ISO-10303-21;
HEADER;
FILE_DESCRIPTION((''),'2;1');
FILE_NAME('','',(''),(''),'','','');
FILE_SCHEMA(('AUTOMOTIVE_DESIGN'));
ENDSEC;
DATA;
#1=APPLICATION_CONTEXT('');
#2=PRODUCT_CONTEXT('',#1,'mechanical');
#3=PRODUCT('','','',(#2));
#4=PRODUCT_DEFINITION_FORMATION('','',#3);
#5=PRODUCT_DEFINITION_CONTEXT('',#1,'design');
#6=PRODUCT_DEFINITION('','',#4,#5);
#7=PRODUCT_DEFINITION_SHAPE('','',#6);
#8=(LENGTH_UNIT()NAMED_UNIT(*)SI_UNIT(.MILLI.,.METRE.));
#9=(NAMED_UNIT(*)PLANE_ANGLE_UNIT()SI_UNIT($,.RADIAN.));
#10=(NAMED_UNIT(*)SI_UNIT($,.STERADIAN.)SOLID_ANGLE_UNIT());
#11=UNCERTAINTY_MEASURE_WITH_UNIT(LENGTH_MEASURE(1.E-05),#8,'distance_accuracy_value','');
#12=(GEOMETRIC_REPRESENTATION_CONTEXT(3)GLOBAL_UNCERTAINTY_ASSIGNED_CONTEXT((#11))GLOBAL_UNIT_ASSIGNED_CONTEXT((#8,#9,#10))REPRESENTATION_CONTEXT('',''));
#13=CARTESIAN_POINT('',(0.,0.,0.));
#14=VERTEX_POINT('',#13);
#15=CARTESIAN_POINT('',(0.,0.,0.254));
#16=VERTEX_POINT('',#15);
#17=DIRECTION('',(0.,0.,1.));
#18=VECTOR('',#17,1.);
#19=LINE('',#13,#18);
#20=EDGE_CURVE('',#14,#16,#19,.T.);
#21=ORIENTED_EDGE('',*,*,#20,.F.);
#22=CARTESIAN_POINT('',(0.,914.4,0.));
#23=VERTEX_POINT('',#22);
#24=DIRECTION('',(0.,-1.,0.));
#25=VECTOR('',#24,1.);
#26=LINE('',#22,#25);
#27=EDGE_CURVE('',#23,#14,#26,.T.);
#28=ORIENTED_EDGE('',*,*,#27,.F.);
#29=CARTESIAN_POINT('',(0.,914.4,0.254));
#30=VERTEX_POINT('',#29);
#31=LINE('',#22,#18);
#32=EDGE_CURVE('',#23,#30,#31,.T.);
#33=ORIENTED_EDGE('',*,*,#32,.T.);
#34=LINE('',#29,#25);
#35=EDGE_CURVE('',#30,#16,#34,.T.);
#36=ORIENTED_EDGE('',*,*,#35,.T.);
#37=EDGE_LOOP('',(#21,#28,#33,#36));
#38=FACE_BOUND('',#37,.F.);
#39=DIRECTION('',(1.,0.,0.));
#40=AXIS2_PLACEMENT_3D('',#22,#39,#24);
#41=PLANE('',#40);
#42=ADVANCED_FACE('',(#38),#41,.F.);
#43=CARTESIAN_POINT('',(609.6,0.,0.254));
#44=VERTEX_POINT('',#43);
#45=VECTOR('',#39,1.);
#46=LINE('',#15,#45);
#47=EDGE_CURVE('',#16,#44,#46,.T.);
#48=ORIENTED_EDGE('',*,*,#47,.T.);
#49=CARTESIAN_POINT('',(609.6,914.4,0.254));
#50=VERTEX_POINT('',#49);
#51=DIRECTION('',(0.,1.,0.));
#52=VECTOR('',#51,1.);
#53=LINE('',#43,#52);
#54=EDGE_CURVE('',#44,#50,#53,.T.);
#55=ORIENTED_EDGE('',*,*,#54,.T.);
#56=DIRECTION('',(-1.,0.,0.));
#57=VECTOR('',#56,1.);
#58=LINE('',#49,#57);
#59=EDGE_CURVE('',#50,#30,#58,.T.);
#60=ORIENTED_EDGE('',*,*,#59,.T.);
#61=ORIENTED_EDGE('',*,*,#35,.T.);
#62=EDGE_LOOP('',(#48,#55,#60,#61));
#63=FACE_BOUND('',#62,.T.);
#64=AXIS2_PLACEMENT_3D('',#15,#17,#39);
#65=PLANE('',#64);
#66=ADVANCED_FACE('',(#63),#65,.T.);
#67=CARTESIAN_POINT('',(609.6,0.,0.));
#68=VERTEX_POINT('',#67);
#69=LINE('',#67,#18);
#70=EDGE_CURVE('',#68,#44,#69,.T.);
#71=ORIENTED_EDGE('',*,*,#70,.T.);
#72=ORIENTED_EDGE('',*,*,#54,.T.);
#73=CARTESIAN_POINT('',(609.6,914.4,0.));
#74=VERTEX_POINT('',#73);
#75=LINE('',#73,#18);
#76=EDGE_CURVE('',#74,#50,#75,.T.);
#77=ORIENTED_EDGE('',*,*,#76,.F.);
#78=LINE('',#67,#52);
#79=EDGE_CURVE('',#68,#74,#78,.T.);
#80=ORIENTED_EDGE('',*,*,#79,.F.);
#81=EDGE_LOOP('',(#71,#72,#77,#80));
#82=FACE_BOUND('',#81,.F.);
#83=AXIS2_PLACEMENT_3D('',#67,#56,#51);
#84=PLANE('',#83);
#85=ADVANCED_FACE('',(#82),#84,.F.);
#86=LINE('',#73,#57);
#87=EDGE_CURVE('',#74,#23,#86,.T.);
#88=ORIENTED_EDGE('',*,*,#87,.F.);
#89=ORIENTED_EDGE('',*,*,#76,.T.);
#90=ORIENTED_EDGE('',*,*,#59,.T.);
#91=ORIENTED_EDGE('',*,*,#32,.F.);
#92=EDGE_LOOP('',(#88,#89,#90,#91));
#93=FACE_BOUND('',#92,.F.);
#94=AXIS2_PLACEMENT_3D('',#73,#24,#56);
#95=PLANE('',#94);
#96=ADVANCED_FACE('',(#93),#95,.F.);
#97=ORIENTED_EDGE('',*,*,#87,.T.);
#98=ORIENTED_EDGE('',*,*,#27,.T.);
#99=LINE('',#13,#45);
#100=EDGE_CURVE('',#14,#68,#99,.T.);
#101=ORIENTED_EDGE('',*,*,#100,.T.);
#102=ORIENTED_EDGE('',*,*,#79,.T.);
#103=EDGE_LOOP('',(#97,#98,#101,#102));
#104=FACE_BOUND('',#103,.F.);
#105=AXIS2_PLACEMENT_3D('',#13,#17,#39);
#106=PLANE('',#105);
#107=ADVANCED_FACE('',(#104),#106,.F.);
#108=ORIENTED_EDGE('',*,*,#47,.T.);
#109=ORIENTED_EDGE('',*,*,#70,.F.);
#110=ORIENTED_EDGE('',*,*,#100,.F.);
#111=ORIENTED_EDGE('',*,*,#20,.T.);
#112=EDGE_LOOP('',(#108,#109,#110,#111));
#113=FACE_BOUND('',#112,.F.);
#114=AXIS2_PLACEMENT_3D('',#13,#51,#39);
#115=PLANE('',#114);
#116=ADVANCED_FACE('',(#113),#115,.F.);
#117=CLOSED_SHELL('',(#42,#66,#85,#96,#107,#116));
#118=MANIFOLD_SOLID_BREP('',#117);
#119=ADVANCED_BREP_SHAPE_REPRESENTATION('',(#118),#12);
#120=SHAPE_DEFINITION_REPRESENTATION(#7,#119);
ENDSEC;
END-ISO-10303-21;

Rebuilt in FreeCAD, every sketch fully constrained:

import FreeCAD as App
import Part
import Sketcher
Q = App.Units.Quantity


def add_polygon(sketch, points):
    """Adds a closed chain of lines whose ends are joined by coincident constraints."""
    first, n = sketch.GeometryCount, len(points)
    for a, b in zip(points, points[1:] + points[:1]):
        sketch.addGeometry(Part.LineSegment(App.Vector(*a, 0), App.Vector(*b, 0)), False)
    for i in range(n):
        sketch.addConstraint(Sketcher.Constraint("Coincident", first + i, 2, first + (i + 1) % n, 1))

doc = App.newDocument("Part")
body = doc.addObject("PartDesign::Body", "Body")

# Sketch on XY plane
sketch1 = body.newObject("Sketcher::SketchObject", "Sketch")
sketch1.AttachmentSupport = (doc.getObject("XY_Plane"), [""])
sketch1.MapMode = "FlatFace"
add_polygon(sketch1, [(0, 914), (0, 0), (610, 0), (610, 914)])  # lines 0-3
sketch1.addConstraint([
    Sketcher.Constraint("Vertical", 0),
    Sketcher.Constraint("Horizontal", 1),
    Sketcher.Constraint("Vertical", 2),
    Sketcher.Constraint("Horizontal", 3),
    Sketcher.Constraint("Coincident", 0, 2, -1, 1),
    Sketcher.Constraint("DistanceX", 1, 1, 1, 2, Q("24 in")),
    Sketcher.Constraint("DistanceY", 0, 2, 0, 1, Q("36 in")),
])
pad1 = body.newObject("PartDesign::Pad", "Pad")
pad1.Profile = sketch1
pad1.Length = Q("0.01 in")

doc.recompute()
